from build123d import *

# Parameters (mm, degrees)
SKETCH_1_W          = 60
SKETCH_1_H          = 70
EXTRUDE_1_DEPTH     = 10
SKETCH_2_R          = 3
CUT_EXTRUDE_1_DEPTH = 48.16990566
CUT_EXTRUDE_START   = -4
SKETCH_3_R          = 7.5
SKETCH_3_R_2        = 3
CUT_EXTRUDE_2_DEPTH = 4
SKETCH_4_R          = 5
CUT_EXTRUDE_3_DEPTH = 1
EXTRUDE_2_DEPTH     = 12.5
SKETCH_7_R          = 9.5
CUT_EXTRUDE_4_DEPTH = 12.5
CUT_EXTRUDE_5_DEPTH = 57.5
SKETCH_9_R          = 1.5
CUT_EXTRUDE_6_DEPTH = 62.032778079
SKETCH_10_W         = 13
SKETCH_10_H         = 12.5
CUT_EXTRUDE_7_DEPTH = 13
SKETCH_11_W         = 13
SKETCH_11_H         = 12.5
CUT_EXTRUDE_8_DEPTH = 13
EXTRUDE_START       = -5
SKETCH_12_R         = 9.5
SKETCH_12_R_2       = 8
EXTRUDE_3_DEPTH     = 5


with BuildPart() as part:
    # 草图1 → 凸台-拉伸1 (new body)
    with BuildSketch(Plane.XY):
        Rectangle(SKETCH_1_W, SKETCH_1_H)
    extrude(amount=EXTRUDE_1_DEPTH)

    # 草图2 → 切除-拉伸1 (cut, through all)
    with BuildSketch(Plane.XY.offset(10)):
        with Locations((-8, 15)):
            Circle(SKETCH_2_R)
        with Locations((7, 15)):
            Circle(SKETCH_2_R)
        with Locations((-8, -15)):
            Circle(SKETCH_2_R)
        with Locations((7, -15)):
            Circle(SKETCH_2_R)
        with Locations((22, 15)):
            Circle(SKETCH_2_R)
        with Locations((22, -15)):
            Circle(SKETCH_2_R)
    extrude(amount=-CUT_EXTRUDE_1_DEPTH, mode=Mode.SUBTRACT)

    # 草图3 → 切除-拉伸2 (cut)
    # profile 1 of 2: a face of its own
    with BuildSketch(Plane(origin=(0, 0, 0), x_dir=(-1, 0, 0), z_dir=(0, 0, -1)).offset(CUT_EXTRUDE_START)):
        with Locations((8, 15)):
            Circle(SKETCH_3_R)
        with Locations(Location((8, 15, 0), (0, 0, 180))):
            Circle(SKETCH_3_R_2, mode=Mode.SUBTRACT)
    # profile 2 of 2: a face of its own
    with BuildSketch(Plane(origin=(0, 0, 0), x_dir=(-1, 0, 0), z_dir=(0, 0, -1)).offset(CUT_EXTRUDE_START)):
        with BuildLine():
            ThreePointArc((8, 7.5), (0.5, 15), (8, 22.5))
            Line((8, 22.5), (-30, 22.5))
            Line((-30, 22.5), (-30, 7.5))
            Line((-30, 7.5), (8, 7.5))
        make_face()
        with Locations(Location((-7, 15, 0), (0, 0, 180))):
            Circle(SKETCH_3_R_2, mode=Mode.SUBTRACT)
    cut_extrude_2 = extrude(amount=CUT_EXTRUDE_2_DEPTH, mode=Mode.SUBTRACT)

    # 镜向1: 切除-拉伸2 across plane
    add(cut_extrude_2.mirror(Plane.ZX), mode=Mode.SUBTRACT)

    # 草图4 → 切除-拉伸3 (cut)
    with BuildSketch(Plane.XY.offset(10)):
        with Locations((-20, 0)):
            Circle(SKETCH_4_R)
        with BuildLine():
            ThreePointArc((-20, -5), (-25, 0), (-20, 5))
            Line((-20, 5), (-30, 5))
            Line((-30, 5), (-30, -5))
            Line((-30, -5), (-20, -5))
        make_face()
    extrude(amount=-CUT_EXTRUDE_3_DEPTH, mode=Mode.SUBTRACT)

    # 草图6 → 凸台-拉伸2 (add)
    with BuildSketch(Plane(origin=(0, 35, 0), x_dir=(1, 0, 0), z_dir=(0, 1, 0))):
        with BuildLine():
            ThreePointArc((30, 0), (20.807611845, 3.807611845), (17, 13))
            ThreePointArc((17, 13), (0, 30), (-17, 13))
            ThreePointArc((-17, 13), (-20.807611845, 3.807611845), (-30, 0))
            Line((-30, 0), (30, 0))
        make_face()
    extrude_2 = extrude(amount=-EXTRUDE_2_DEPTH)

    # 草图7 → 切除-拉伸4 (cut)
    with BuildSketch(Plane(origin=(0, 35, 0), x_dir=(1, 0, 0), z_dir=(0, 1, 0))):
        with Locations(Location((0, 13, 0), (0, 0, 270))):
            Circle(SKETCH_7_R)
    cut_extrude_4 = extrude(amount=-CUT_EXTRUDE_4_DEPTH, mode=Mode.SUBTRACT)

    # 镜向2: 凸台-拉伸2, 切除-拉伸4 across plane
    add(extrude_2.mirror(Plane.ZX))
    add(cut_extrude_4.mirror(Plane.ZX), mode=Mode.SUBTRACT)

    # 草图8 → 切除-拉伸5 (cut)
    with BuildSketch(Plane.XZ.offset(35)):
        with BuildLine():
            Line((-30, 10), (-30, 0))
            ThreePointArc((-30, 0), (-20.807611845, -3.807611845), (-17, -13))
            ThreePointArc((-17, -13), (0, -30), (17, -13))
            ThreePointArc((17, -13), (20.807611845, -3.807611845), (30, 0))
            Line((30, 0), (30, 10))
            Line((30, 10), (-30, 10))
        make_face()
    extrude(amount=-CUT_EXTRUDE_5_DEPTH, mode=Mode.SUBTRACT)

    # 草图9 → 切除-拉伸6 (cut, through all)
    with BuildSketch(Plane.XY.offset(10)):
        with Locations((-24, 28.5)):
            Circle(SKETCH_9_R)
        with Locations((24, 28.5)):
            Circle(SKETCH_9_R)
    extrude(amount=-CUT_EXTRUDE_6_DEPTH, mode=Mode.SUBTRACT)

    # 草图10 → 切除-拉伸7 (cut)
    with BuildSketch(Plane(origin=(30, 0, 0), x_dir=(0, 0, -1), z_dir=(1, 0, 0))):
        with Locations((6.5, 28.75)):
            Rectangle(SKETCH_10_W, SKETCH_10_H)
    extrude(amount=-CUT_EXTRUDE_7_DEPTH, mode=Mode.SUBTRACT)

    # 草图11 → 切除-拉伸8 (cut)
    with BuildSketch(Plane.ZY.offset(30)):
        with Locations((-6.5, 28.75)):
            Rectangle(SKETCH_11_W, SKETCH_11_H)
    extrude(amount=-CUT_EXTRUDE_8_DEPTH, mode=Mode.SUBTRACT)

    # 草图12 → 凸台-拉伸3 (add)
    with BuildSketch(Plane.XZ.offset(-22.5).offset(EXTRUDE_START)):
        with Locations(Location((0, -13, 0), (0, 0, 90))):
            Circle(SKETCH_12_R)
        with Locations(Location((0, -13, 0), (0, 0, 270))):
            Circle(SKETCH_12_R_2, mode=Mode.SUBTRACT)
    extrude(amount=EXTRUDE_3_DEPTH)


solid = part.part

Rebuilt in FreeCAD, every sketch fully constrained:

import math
import FreeCAD as App
import Part
import Sketcher
from FreeCAD import Vector


def add_polygon(sketch, points):
    """Adds a closed chain of lines whose ends are joined by coincident constraints."""
    first, n = sketch.GeometryCount, len(points)
    for a, b in zip(points, points[1:] + points[:1]):
        sketch.addGeometry(Part.LineSegment(App.Vector(*a, 0), App.Vector(*b, 0)), False)
    for i in range(n):
        sketch.addConstraint(Sketcher.Constraint("Coincident", first + i, 2, first + (i + 1) % n, 1))

doc = App.newDocument("Part")
body = doc.addObject("PartDesign::Body", "Body")

# Sketch on XY plane
sketch1 = doc.addObject("Sketcher::SketchObject", "Sketch")
body.addObject(sketch1)
sketch1.AttachmentSupport = (doc.XY_Plane, [""])
sketch1.MapMode = "FlatFace"
add_polygon(sketch1, [(-30, 35), (-30, -35), (30, -35), (30, 35)])  # lines 0-3
sketch1.addConstraint(Sketcher.Constraint("Vertical", 0))
sketch1.addConstraint(Sketcher.Constraint("Horizontal", 1))
sketch1.addConstraint(Sketcher.Constraint("Vertical", 2))
sketch1.addConstraint(Sketcher.Constraint("Horizontal", 3))
sketch1.addConstraint(Sketcher.Constraint("Symmetric", 0, 2, 2, 2, -1, 1))
sketch1.addConstraint(Sketcher.Constraint("DistanceX", 1, 1, 1, 2, 60.0))
sketch1.addConstraint(Sketcher.Constraint("DistanceY", 0, 2, 0, 1, 70.0))
pad1 = doc.addObject("PartDesign::Pad", "Pad")
body.addObject(pad1)
pad1.Profile = sketch1
pad1.Length = 10

# Sketch on XY plane
sketch2 = doc.addObject("Sketcher::SketchObject", "Sketch001")
body.addObject(sketch2)
sketch2.AttachmentSupport = (doc.XY_Plane, [""])
sketch2.MapMode = "FlatFace"
sketch2.AttachmentOffset = App.Placement(Vector(0, 0, 10), App.Rotation())
sketch2.addGeometry(Part.Circle(Vector(-8, 15, 0), Vector(0, 0, 1), 3), False)
sketch2.addGeometry(Part.Circle(Vector(7, 15, 0), Vector(0, 0, 1), 3), False)
sketch2.addGeometry(Part.Circle(Vector(-8, -15, 0), Vector(0, 0, 1), 3), False)
sketch2.addGeometry(Part.Circle(Vector(7, -15, 0), Vector(0, 0, 1), 3), False)
sketch2.addGeometry(Part.Circle(Vector(22, 15, 0), Vector(0, 0, 1), 3), False)
sketch2.addGeometry(Part.Circle(Vector(22, -15, 0), Vector(0, 0, 1), 3), False)
sketch2.addConstraint(Sketcher.Constraint("Equal", 0, 1))
sketch2.addConstraint(Sketcher.Constraint("Equal", 1, 2))
sketch2.addConstraint(Sketcher.Constraint("Equal", 2, 3))
sketch2.addConstraint(Sketcher.Constraint("Equal", 3, 4))
sketch2.addConstraint(Sketcher.Constraint("Equal", 4, 5))
sketch2.addConstraint(Sketcher.Constraint("Symmetric", 0, 3, 2, 3, -1))
sketch2.addConstraint(Sketcher.Constraint("Symmetric", 1, 3, 3, 3, -1))
sketch2.addConstraint(Sketcher.Constraint("Symmetric", 4, 3, 5, 3, -1))
sketch2.addConstraint(Sketcher.Constraint("Horizontal", 0, 3, 1, 3))
sketch2.addConstraint(Sketcher.Constraint("Horizontal", 1, 3, 4, 3))
sketch2.addConstraint(Sketcher.Constraint("Diameter", 0, 6.0))
sketch2.addConstraint(Sketcher.Constraint("DistanceX", 0, 3, -1, 1, 8.0))
sketch2.addConstraint(Sketcher.Constraint("DistanceY", -1, 1, 0, 3, 15.0))
sketch2.addConstraint(Sketcher.Constraint("DistanceX", -1, 1, 1, 3, 7.0))
sketch2.addConstraint(Sketcher.Constraint("DistanceX", -1, 1, 4, 3, 22.0))
pocket1 = doc.addObject("PartDesign::Pocket", "Pocket")
body.addObject(pocket1)
pocket1.Profile = sketch2
pocket1.Type = "ThroughAll"

# Sketch on XY plane
sketch3 = doc.addObject("Sketcher::SketchObject", "Sketch002")
body.addObject(sketch3)
sketch3.AttachmentSupport = (doc.XY_Plane, [""])
sketch3.MapMode = "FlatFace"
sketch3.AttachmentOffset = App.Placement(Vector(0, 0, 4), App.Rotation())
sketch3.addGeometry(Part.LineSegment(Vector(-8, 22.5, 0), Vector(30, 22.5, 0)), False)
sketch3.addGeometry(Part.LineSegment(Vector(30, 22.5, 0), Vector(30, 7.5, 0)), False)
sketch3.addGeometry(Part.LineSegment(Vector(30, 7.5, 0), Vector(-8, 7.5, 0)), False)
sketch3.addGeometry(Part.ArcOfCircle(Part.Circle(Vector(-8, 15, 0), Vector(0, 0, 1), 7.5), math.radians(90), math.radians(270)), False)
sketch3.addGeometry(Part.Circle(Vector(-8, 15, 0), Vector(0, 0, 1), 3), False)
sketch3.addGeometry(Part.Circle(Vector(7, 15, 0), Vector(0, 0, 1), 3), False)
sketch3.addConstraint(Sketcher.Constraint("Coincident", 0, 2, 1, 1))
sketch3.addConstraint(Sketcher.Constraint("Coincident", 1, 2, 2, 1))
sketch3.addConstraint(Sketcher.Constraint("Tangent", 2, 2, 3, 2))
sketch3.addConstraint(Sketcher.Constraint("Tangent", 3, 1, 0, 1))
sketch3.addConstraint(Sketcher.Constraint("Horizontal", 0))
sketch3.addConstraint(Sketcher.Constraint("Vertical", 1))
sketch3.addConstraint(Sketcher.Constraint("Horizontal", 2))
sketch3.addConstraint(Sketcher.Constraint("Coincident", 4, 3, 3, 3))
sketch3.addConstraint(Sketcher.Constraint("Equal", 4, 5))
sketch3.addConstraint(Sketcher.Constraint("Horizontal", 4, 3, 5, 3))
sketch3.addConstraint(Sketcher.Constraint("Diameter", 4, 6.0))
sketch3.addConstraint(Sketcher.Constraint("Radius", 3, 7.5))
sketch3.addConstraint(Sketcher.Constraint("DistanceX", 0, 1, 0, 2, 38.0))
sketch3.addConstraint(Sketcher.Constraint("DistanceX", 3, 3, -1, 1, 8.0))
sketch3.addConstraint(Sketcher.Constraint("DistanceY", -1, 1, 3, 3, 15.0))
sketch3.addConstraint(Sketcher.Constraint("DistanceX", -1, 1, 5, 3, 7.0))
pocket2 = doc.addObject("PartDesign::Pocket", "Pocket001")
body.addObject(pocket2)
pocket2.Profile = sketch3
pocket2.Length = 4
doc.recompute()

mirrored = doc.addObject("PartDesign::Mirrored", "Mirrored")
body.addObject(mirrored)
mirrored.Originals = [pocket2]
mirrored.MirrorPlane = (doc.XZ_Plane, [""])
body.Tip = mirrored

# Sketch on XY plane
sketch4 = doc.addObject("Sketcher::SketchObject", "Sketch003")
body.addObject(sketch4)
sketch4.AttachmentSupport = (doc.XY_Plane, [""])
sketch4.MapMode = "FlatFace"
sketch4.AttachmentOffset = App.Placement(Vector(0, 0, 10), App.Rotation())
sketch4.addGeometry(Part.LineSegment(Vector(-20, 5, 0), Vector(-30, 5, 0)), False)
sketch4.addGeometry(Part.LineSegment(Vector(-30, 5, 0), Vector(-30, -5, 0)), False)
sketch4.addGeometry(Part.LineSegment(Vector(-30, -5, 0), Vector(-20, -5, 0)), False)
sketch4.addGeometry(Part.ArcOfCircle(Part.Circle(Vector(-20, 0, 0), Vector(0, 0, 1), 5), math.radians(-90), math.radians(90)), False)
sketch4.addConstraint(Sketcher.Constraint("Coincident", 0, 2, 1, 1))
sketch4.addConstraint(Sketcher.Constraint("Coincident", 1, 2, 2, 1))
sketch4.addConstraint(Sketcher.Constraint("Tangent", 2, 2, 3, 1))
sketch4.addConstraint(Sketcher.Constraint("Tangent", 3, 2, 0, 1))
sketch4.addConstraint(Sketcher.Constraint("Horizontal", 0))
sketch4.addConstraint(Sketcher.Constraint("Vertical", 1))
sketch4.addConstraint(Sketcher.Constraint("Horizontal", 2))
sketch4.addConstraint(Sketcher.Constraint("PointOnObject", 3, 3, -1))
sketch4.addConstraint(Sketcher.Constraint("Equal", 2, 1))
sketch4.addConstraint(Sketcher.Constraint("Radius", 3, 5.0))
sketch4.addConstraint(Sketcher.Constraint("DistanceX", 3, 3, -1, 1, 20.0))
pocket3 = doc.addObject("PartDesign::Pocket", "Pocket002")
body.addObject(pocket3)
pocket3.Profile = sketch4
pocket3.Length = 1

# Sketch on XZ plane
sketch5 = doc.addObject("Sketcher::SketchObject", "Sketch004")
body.addObject(sketch5)
sketch5.AttachmentSupport = (doc.XZ_Plane, [""])
sketch5.MapMode = "FlatFace"
sketch5.AttachmentOffset = App.Placement(Vector(0, 0, -35), App.Rotation())
sketch5.addGeometry(Part.ArcOfCircle(Part.Circle(Vector(30, -13, 0), Vector(0, 0, 1), 13), math.radians(90), math.radians(180)), False)
sketch5.addGeometry(Part.ArcOfCircle(Part.Circle(Vector(0, -13, 0), Vector(0, 0, 1), 17), math.radians(180), math.radians(360)), False)
sketch5.addGeometry(Part.ArcOfCircle(Part.Circle(Vector(-30, -13, 0), Vector(0, 0, 1), 13), math.radians(0), math.radians(90)), False)
sketch5.addGeometry(Part.LineSegment(Vector(-30, 0, 0), Vector(30, 0, 0)), False)
sketch5.addConstraint(Sketcher.Constraint("Tangent", 0, 2, 1, 2))
sketch5.addConstraint(Sketcher.Constraint("Tangent", 1, 1, 2, 1))
sketch5.addConstraint(Sketcher.Constraint("Tangent", 2, 2, 3, 1))
sketch5.addConstraint(Sketcher.Constraint("Tangent", 3, 2, 0, 1))
sketch5.addConstraint(Sketcher.Constraint("Horizontal", 3))
sketch5.addConstraint(Sketcher.Constraint("Equal", 0, 2))
sketch5.addConstraint(Sketcher.Constraint("Symmetric", 2, 2, 3, 2, -1, 1))
sketch5.addConstraint(Sketcher.Constraint("Horizontal", 0, 3, 1, 3))
sketch5.addConstraint(Sketcher.Constraint("Radius", 0, 13.0))
sketch5.addConstraint(Sketcher.Constraint("Radius", 1, 17.0))
pad2 = doc.addObject("PartDesign::Pad", "Pad001")
body.addObject(pad2)
pad2.Profile = sketch5
pad2.Length = 12.5

# Sketch on XZ plane
sketch6 = doc.addObject("Sketcher::SketchObject", "Sketch005")
body.addObject(sketch6)
sketch6.AttachmentSupport = (doc.XZ_Plane, [""])
sketch6.MapMode = "FlatFace"
sketch6.AttachmentOffset = App.Placement(Vector(0, 0, -35), App.Rotation())
sketch6.addGeometry(Part.Circle(Vector(0, -13, 0), Vector(0, 0, 1), 10), False)
sketch6.addConstraint(Sketcher.Constraint("PointOnObject", 0, 3, -2))
sketch6.addConstraint(Sketcher.Constraint("Diameter", 0, 19.0))
sketch6.addConstraint(Sketcher.Constraint("DistanceY", 0, 3, -1, 1, 13.0))
pocket4 = doc.addObject("PartDesign::Pocket", "Pocket003")
body.addObject(pocket4)
pocket4.Profile = sketch6
pocket4.Length = 12.5
pocket4.Reversed = True
doc.recompute()

mirrored2 = doc.addObject("PartDesign::Mirrored", "Mirrored001")
body.addObject(mirrored2)
mirrored2.Originals = [pad2, pocket4]
mirrored2.MirrorPlane = (doc.XZ_Plane, [""])
body.Tip = mirrored2

# Sketch on XZ plane
sketch7 = doc.addObject("Sketcher::SketchObject", "Sketch006")
body.addObject(sketch7)
sketch7.AttachmentSupport = (doc.XZ_Plane, [""])
sketch7.MapMode = "FlatFace"
sketch7.AttachmentOffset = App.Placement(Vector(0, 0, 35), App.Rotation())
sketch7.addGeometry(Part.LineSegment(Vector(-30, 10, 0), Vector(-30, 0, 0)), False)
sketch7.addGeometry(Part.ArcOfCircle(Part.Circle(Vector(-30, -13, 0), Vector(0, 0, 1), 13), math.radians(0), math.radians(90)), False)
sketch7.addGeometry(Part.ArcOfCircle(Part.Circle(Vector(0, -13, 0), Vector(0, 0, 1), 17), math.radians(180), math.radians(360)), False)
sketch7.addGeometry(Part.ArcOfCircle(Part.Circle(Vector(30, -13, 0), Vector(0, 0, 1), 13), math.radians(90), math.radians(180)), False)
sketch7.addGeometry(Part.LineSegment(Vector(30, 0, 0), Vector(30, 10, 0)), False)
sketch7.addGeometry(Part.LineSegment(Vector(30, 10, 0), Vector(-30, 10, 0)), False)
sketch7.addConstraint(Sketcher.Constraint("Coincident", 0, 2, 1, 2))
sketch7.addConstraint(Sketcher.Constraint("Tangent", 1, 1, 2, 1))
sketch7.addConstraint(Sketcher.Constraint("Tangent", 2, 2, 3, 2))
sketch7.addConstraint(Sketcher.Constraint("Coincident", 3, 1, 4, 1))
sketch7.addConstraint(Sketcher.Constraint("Coincident", 4, 2, 5, 1))
sketch7.addConstraint(Sketcher.Constraint("Coincident", 5, 2, 0, 1))
sketch7.addConstraint(Sketcher.Constraint("Vertical", 0))
sketch7.addConstraint(Sketcher.Constraint("Vertical", 4))
sketch7.addConstraint(Sketcher.Constraint("Horizontal", 5))
sketch7.addConstraint(Sketcher.Constraint("Equal", 1, 3))
sketch7.addConstraint(Sketcher.Constraint("Symmetric", 0, 2, 3, 1, -1, 1))
sketch7.addConstraint(Sketcher.Constraint("Symmetric", 1, 3, 3, 3, -2))
sketch7.addConstraint(Sketcher.Constraint("Horizontal", 1, 3, 2, 3))
sketch7.addConstraint(Sketcher.Constraint("Vertical", 1, 3, 0, 2))
sketch7.addConstraint(Sketcher.Constraint("Radius", 1, 13.0))
sketch7.addConstraint(Sketcher.Constraint("Radius", 2, 17.0))
sketch7.addConstraint(Sketcher.Constraint("DistanceY", 0, 2, 0, 1, 10.0))
pocket5 = doc.addObject("PartDesign::Pocket", "Pocket004")
body.addObject(pocket5)
pocket5.Profile = sketch7
pocket5.Length = 57.5

# Sketch on XY plane
sketch8 = doc.addObject("Sketcher::SketchObject", "Sketch007")
body.addObject(sketch8)
sketch8.AttachmentSupport = (doc.XY_Plane, [""])
sketch8.MapMode = "FlatFace"
sketch8.AttachmentOffset = App.Placement(Vector(0, 0, 10), App.Rotation())
sketch8.addGeometry(Part.Circle(Vector(-24, 28.5, 0), Vector(0, 0, 1), 1.5), False)
sketch8.addGeometry(Part.Circle(Vector(24, 28.5, 0), Vector(0, 0, 1), 1.5), False)
sketch8.addConstraint(Sketcher.Constraint("Equal", 0, 1))
sketch8.addConstraint(Sketcher.Constraint("Symmetric", 0, 3, 1, 3, -2))
sketch8.addConstraint(Sketcher.Constraint("Diameter", 0, 3.0))
sketch8.addConstraint(Sketcher.Constraint("DistanceX", 0, 3, -1, 1, 24.0))
sketch8.addConstraint(Sketcher.Constraint("DistanceY", -1, 1, 0, 3, 28.5))
pocket6 = doc.addObject("PartDesign::Pocket", "Pocket005")
body.addObject(pocket6)
pocket6.Profile = sketch8
pocket6.Type = "ThroughAll"

# Sketch on YZ plane
sketch9 = doc.addObject("Sketcher::SketchObject", "Sketch008")
body.addObject(sketch9)
sketch9.AttachmentSupport = (doc.YZ_Plane, [""])
sketch9.MapMode = "FlatFace"
sketch9.AttachmentOffset = App.Placement(Vector(0, 0, 30), App.Rotation())
add_polygon(sketch9, [(35, 0), (22, 0), (22, -13), (35, -13)])  # lines 0-3
sketch9.addConstraint(Sketcher.Constraint("Horizontal", 0))
sketch9.addConstraint(Sketcher.Constraint("Vertical", 1))
sketch9.addConstraint(Sketcher.Constraint("Horizontal", 2))
sketch9.addConstraint(Sketcher.Constraint("Vertical", 3))
sketch9.addConstraint(Sketcher.Constraint("PointOnObject", 0, 2, -1))
sketch9.addConstraint(Sketcher.Constraint("DistanceY", 1, 2, 1, 1, 13.0))
sketch9.addConstraint(Sketcher.Constraint("DistanceX", 0, 2, 0, 1, 12.5))
sketch9.addConstraint(Sketcher.Constraint("DistanceX", -1, 1, 2, 2, 35.0))
pocket7 = doc.addObject("PartDesign::Pocket", "Pocket006")
body.addObject(pocket7)
pocket7.Profile = sketch9
pocket7.Length = 13

# Sketch on YZ plane
sketch10 = doc.addObject("Sketcher::SketchObject", "Sketch009")
body.addObject(sketch10)
sketch10.AttachmentSupport = (doc.YZ_Plane, [""])
sketch10.MapMode = "FlatFace"
sketch10.AttachmentOffset = App.Placement(Vector(0, 0, -30), App.Rotation())
add_polygon(sketch10, [(35, -13), (22, -13), (22, 0), (35, 0)])  # lines 0-3
sketch10.addConstraint(Sketcher.Constraint("Horizontal", 0))
sketch10.addConstraint(Sketcher.Constraint("Vertical", 1))
sketch10.addConstraint(Sketcher.Constraint("Horizontal", 2))
sketch10.addConstraint(Sketcher.Constraint("Vertical", 3))
sketch10.addConstraint(Sketcher.Constraint("PointOnObject", 1, 2, -1))
sketch10.addConstraint(Sketcher.Constraint("DistanceY", 1, 1, 1, 2, 13.0))
sketch10.addConstraint(Sketcher.Constraint("DistanceX", 0, 2, 0, 1, 12.5))
sketch10.addConstraint(Sketcher.Constraint("DistanceX", -1, 1, 2, 2, 35.0))
pocket8 = doc.addObject("PartDesign::Pocket", "Pocket007")
body.addObject(pocket8)
pocket8.Profile = sketch10
pocket8.Length = 13
pocket8.Reversed = True

# Sketch on XZ plane
sketch11 = doc.addObject("Sketcher::SketchObject", "Sketch010")
body.addObject(sketch11)
sketch11.AttachmentSupport = (doc.XZ_Plane, [""])
sketch11.MapMode = "FlatFace"
sketch11.AttachmentOffset = App.Placement(Vector(0, 0, -27.5), App.Rotation())
sketch11.addGeometry(Part.Circle(Vector(0, -13, 0), Vector(0, 0, 1), 10), False)
sketch11.addGeometry(Part.Circle(Vector(0, -13, 0), Vector(0, 0, 1), 8), False)
sketch11.addConstraint(Sketcher.Constraint("Coincident", 1, 3, 0, 3))
sketch11.addConstraint(Sketcher.Constraint("PointOnObject", 0, 3, -2))
sketch11.addConstraint(Sketcher.Constraint("Diameter", 0, 19.0))
sketch11.addConstraint(Sketcher.Constraint("Diameter", 1, 16.0))
sketch11.addConstraint(Sketcher.Constraint("DistanceY", 0, 3, -1, 1, 13.0))
pad3 = doc.addObject("PartDesign::Pad", "Pad002")
body.addObject(pad3)
pad3.Profile = sketch11
pad3.Length = 5

doc.recompute()
